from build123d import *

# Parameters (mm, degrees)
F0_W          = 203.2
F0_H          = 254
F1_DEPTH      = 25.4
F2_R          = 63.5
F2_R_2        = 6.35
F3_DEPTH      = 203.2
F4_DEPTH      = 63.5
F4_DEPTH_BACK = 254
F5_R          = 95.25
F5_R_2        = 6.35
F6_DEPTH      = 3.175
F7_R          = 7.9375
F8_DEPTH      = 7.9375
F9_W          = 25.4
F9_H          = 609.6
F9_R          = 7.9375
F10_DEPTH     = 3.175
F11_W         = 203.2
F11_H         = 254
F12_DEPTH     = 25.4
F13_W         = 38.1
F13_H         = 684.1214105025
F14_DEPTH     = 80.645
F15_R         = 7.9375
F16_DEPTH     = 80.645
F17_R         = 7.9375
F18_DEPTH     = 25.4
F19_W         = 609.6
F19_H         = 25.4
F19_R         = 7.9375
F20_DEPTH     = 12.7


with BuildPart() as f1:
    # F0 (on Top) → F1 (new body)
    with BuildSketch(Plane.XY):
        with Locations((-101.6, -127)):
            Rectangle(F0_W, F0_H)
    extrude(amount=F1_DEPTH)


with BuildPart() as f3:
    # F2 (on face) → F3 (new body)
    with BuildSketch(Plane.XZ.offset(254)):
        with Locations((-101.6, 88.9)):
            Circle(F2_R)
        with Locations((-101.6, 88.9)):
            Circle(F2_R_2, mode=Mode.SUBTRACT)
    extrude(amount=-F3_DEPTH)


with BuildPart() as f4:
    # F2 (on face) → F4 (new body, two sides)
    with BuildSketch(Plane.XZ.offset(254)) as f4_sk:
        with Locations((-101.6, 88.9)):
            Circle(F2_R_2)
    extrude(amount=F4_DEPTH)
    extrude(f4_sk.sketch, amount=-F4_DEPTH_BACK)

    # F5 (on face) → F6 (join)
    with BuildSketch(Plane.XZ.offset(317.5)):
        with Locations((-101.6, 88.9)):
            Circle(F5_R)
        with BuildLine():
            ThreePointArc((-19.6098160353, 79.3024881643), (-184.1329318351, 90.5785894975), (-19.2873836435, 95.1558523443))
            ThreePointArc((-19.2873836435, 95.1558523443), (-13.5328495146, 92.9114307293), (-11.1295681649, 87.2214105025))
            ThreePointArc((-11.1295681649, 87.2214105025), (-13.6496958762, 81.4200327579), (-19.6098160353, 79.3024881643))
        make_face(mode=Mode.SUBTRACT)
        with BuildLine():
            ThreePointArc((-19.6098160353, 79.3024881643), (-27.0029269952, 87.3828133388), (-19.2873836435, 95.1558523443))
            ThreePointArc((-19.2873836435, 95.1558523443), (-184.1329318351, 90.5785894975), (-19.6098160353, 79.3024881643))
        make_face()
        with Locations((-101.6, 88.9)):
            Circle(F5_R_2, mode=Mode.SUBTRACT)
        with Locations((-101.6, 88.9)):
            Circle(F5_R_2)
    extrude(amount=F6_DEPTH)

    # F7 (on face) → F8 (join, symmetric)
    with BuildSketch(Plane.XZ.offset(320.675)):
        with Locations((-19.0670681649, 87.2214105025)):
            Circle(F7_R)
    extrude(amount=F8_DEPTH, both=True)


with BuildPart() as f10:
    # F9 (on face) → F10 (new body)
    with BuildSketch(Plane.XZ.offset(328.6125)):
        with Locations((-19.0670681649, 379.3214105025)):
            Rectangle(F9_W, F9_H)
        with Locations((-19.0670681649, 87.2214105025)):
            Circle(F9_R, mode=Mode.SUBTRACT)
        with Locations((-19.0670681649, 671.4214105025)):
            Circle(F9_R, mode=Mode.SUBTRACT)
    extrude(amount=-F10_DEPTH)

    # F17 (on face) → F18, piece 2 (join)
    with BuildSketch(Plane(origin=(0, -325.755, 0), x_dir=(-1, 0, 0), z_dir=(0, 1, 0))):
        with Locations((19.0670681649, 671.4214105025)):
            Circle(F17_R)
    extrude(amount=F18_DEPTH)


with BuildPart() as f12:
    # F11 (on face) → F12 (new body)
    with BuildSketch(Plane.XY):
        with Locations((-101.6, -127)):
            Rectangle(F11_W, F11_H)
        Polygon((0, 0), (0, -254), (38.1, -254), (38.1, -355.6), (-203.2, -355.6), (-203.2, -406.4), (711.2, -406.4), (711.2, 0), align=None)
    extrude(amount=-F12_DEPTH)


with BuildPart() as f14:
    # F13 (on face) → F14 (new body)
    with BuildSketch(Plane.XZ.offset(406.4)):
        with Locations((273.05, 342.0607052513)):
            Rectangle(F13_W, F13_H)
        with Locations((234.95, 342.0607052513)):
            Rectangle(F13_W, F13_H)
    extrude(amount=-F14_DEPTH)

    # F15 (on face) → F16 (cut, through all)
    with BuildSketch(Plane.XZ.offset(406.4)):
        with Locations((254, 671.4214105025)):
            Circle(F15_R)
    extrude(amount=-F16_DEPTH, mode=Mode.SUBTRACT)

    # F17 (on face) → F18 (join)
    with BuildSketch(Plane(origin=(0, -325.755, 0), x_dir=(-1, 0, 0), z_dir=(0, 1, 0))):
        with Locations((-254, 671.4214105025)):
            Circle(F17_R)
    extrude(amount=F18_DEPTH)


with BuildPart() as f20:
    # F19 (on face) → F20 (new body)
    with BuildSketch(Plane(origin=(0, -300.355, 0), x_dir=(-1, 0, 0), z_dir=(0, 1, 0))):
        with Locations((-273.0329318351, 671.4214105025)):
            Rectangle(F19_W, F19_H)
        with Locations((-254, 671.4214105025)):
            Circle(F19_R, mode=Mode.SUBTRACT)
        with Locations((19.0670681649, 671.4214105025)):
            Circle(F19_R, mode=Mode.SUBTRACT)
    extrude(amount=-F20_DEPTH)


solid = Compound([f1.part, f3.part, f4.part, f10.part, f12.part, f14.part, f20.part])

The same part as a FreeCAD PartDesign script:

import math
import FreeCAD as App
import Part
import Sketcher
Q = App.Units.Quantity

doc = App.newDocument("Part")
body = doc.addObject("PartDesign::Body", "Body")

sketch1 = body.newObject("Sketcher::SketchObject", "Sketch")
sketch1.AttachmentSupport = (doc.getObject("XY_Plane"), [""])
sketch1.MapMode = "FlatFace"
sketch1.addGeometry([
    Part.LineSegment(App.Vector(-203.2, 0, 0), App.Vector(-203.2, -254, 0)),
    Part.LineSegment(App.Vector(-203.2, -254, 0), App.Vector(0, -254, 0)),
    Part.LineSegment(App.Vector(0, -254, 0), App.Vector(0, 0, 0)),
    Part.LineSegment(App.Vector(0, 0, 0), App.Vector(-203.2, 0, 0)),
], False)
sketch1.addConstraint([
    Sketcher.Constraint("Coincident", 0, 2, 1, 1),
    Sketcher.Constraint("Coincident", 1, 2, 2, 1),
    Sketcher.Constraint("Coincident", 2, 2, 3, 1),
    Sketcher.Constraint("Coincident", 3, 2, 0, 1),
    Sketcher.Constraint("Vertical", 0),
    Sketcher.Constraint("Horizontal", 1),
    Sketcher.Constraint("Vertical", 2),
    Sketcher.Constraint("Horizontal", 3),
    Sketcher.Constraint("Coincident", 2, 2, -1, 1),
    Sketcher.Constraint("DistanceX", 1, 1, 1, 2, Q("8 in")),
    Sketcher.Constraint("DistanceY", 0, 2, 0, 1, Q("10 in")),
])
pad1 = body.newObject("PartDesign::Pad", "Pad")
pad1.Profile = sketch1
pad1.Length = Q("1 in")
body2 = doc.addObject("PartDesign::Body", "Body001")

sketch2 = body2.newObject("Sketcher::SketchObject", "Sketch001")
sketch2.AttachmentSupport = (doc.getObject("XZ_Plane001"), [""])
sketch2.MapMode = "FlatFace"
sketch2.AttachmentOffset = App.Placement(App.Vector(0, 0, 10 * 25.4), App.Rotation())
sketch2.addGeometry([
    Part.Circle(App.Vector(-101.6, 88.9, 0), App.Vector(0, 0, 1), 63.5),
    Part.Circle(App.Vector(-101.6, 88.9, 0), App.Vector(0, 0, 1), 6.35),
], False)
sketch2.addConstraint([
    Sketcher.Constraint("Coincident", 1, 3, 0, 3),
    Sketcher.Constraint("Diameter", 0, Q("5 in")),
    Sketcher.Constraint("Diameter", 1, Q("0.5 in")),
    Sketcher.Constraint("DistanceX", 0, 3, -1, 1, Q("4 in")),
    Sketcher.Constraint("DistanceY", -1, 1, 0, 3, Q("3.5 in")),
])
pad2 = body2.newObject("PartDesign::Pad", "Pad001")
pad2.Profile = sketch2
pad2.Length = Q("8 in")
pad2.Reversed = True
body3 = doc.addObject("PartDesign::Body", "Body002")

sketch3 = body3.newObject("Sketcher::SketchObject", "Sketch002")
sketch3.AttachmentSupport = (doc.getObject("XZ_Plane002"), [""])
sketch3.MapMode = "FlatFace"
sketch3.AttachmentOffset = App.Placement(App.Vector(0, 0, 10 * 25.4), App.Rotation())
sketch3.addGeometry(Part.Circle(App.Vector(-101.6, 88.9, 0), App.Vector(0, 0, 1), 6.35), False)
sketch3.addConstraint([
    Sketcher.Constraint("Diameter", 0, Q("0.5 in")),
    Sketcher.Constraint("DistanceX", 0, 3, -1, 1, Q("4 in")),
    Sketcher.Constraint("DistanceY", -1, 1, 0, 3, Q("3.5 in")),
])
pad3 = body3.newObject("PartDesign::Pad", "Pad002")
pad3.Profile = sketch3
pad3.Type = "TwoLengths"
pad3.Length = Q("2.5 in")
pad3.Length2 = Q("10 in")

sketch4 = body3.newObject("Sketcher::SketchObject", "Sketch003")
sketch4.AttachmentSupport = (doc.getObject("XZ_Plane002"), [""])
sketch4.MapMode = "FlatFace"
sketch4.AttachmentOffset = App.Placement(App.Vector(0, 0, 12.5 * 25.4), App.Rotation())
sketch4.addGeometry([
    Part.Circle(App.Vector(-101.6, 88.9, 0), App.Vector(0, 0, 1), 95.25),
    Part.ArcOfCircle(Part.Circle(App.Vector(-19.067068, 87.221411, 0), App.Vector(0, 0, 1), 7.9375), math.radians(-93.920812), math.radians(0)),
    Part.ArcOfCircle(Part.Circle(App.Vector(-19.067068, 87.221411, 0), App.Vector(0, 0, 1), 7.9375), math.radians(91.590522), math.radians(266.079188)),
    Part.ArcOfCircle(Part.Circle(App.Vector(-19.067068, 87.221411, 0), App.Vector(0, 0, 1), 7.9375), math.radians(0), math.radians(91.590522)),
], False)
sketch4.addConstraint([
    Sketcher.Constraint("Tangent", 1, 1, 2, 2),
    Sketcher.Constraint("Tangent", 2, 1, 3, 2),
    Sketcher.Constraint("Tangent", 3, 1, 1, 2),
    Sketcher.Constraint("Horizontal", 2, 3, 3, 1),
    Sketcher.Constraint("Diameter", 0, Q("7.5 in")),
    Sketcher.Constraint("DistanceX", 0, 3, -1, 1, Q("4 in")),
    Sketcher.Constraint("Radius", 1, Q("0.3125 in")),
    Sketcher.Constraint("DistanceY", -1, 1, 0, 3, Q("3.5 in")),
    Sketcher.Constraint("DistanceX", 1, 3, -1, 1, 19.067068),
    Sketcher.Constraint("DistanceY", -1, 1, 1, 3, 87.221411),
    Sketcher.Constraint("DistanceY", -1, 1, 1, 1, 79.302488),
    Sketcher.Constraint("DistanceY", 2, 3, 2, 1, 7.934442),
])
pad4 = body3.newObject("PartDesign::Pad", "Pad003")
pad4.Profile = sketch4
pad4.Length = Q("0.125 in")

sketch5 = body3.newObject("Sketcher::SketchObject", "Sketch004")
sketch5.AttachmentSupport = (doc.getObject("XZ_Plane002"), [""])
sketch5.MapMode = "FlatFace"
sketch5.AttachmentOffset = App.Placement(App.Vector(0, 0, 12.625 * 25.4), App.Rotation())
sketch5.addGeometry(Part.Circle(App.Vector(-19.067068, 87.221411, 0), App.Vector(0, 0, 1), 7.9375), False)
sketch5.addConstraint([
    Sketcher.Constraint("Diameter", 0, Q("0.625 in")),
    Sketcher.Constraint("DistanceX", 0, 3, -1, 1, 19.067068),
    Sketcher.Constraint("DistanceY", -1, 1, 0, 3, 87.221411),
])
pad5 = body3.newObject("PartDesign::Pad", "Pad004")
pad5.Profile = sketch5
pad5.Length = Q("0.625 in")
pad5.Midplane = True
body4 = doc.addObject("PartDesign::Body", "Body003")

sketch6 = body4.newObject("Sketcher::SketchObject", "Sketch005")
sketch6.AttachmentSupport = (doc.getObject("XZ_Plane003"), [""])
sketch6.MapMode = "FlatFace"
sketch6.AttachmentOffset = App.Placement(App.Vector(0, 0, 12.9375 * 25.4), App.Rotation())
sketch6.addGeometry([
    Part.LineSegment(App.Vector(-31.767068, 684.121411, 0), App.Vector(-31.767068, 74.521411, 0)),
    Part.LineSegment(App.Vector(-31.767068, 74.521411, 0), App.Vector(-6.367068, 74.521411, 0)),
    Part.LineSegment(App.Vector(-6.367068, 74.521411, 0), App.Vector(-6.367068, 684.121411, 0)),
    Part.LineSegment(App.Vector(-6.367068, 684.121411, 0), App.Vector(-31.767068, 684.121411, 0)),
    Part.Circle(App.Vector(-19.067068, 87.221411, 0), App.Vector(0, 0, 1), 7.9375),
    Part.Circle(App.Vector(-19.067068, 671.421411, 0), App.Vector(0, 0, 1), 7.9375),
], False)
sketch6.addConstraint([
    Sketcher.Constraint("Coincident", 0, 2, 1, 1),
    Sketcher.Constraint("Coincident", 1, 2, 2, 1),
    Sketcher.Constraint("Coincident", 2, 2, 3, 1),
    Sketcher.Constraint("Coincident", 3, 2, 0, 1),
    Sketcher.Constraint("Vertical", 0),
    Sketcher.Constraint("Horizontal", 1),
    Sketcher.Constraint("Vertical", 2),
    Sketcher.Constraint("Horizontal", 3),
    Sketcher.Constraint("Equal", 4, 5),
    Sketcher.Constraint("Vertical", 4, 3, 5, 3),
    Sketcher.Constraint("DistanceX", 1, 1, 1, 2, Q("1 in")),
    Sketcher.Constraint("DistanceY", 0, 2, 0, 1, Q("24 in")),
    Sketcher.Constraint("Diameter", 4, Q("0.625 in")),
    Sketcher.Constraint("DistanceY", 4, 3, 5, 3, Q("23 in")),
    Sketcher.Constraint("DistanceX", 0, 2, 4, 3, Q("0.5 in")),
    Sketcher.Constraint("DistanceY", 0, 2, 4, 3, Q("0.5 in")),
    Sketcher.Constraint("DistanceX", 4, 3, -1, 1, 19.067068),
    Sketcher.Constraint("DistanceY", -1, 1, 4, 3, 87.221411),
])
pad6 = body4.newObject("PartDesign::Pad", "Pad005")
pad6.Profile = sketch6
pad6.Length = Q("0.125 in")
pad6.Reversed = True

sketch7 = body4.newObject("Sketcher::SketchObject", "Sketch006")
sketch7.AttachmentSupport = (doc.getObject("XZ_Plane003"), [""])
sketch7.MapMode = "FlatFace"
sketch7.AttachmentOffset = App.Placement(App.Vector(0, 0, 12.825 * 25.4), App.Rotation())
sketch7.addGeometry(Part.Circle(App.Vector(-19.067068, 671.421411, 0), App.Vector(0, 0, 1), 7.9375), False)
sketch7.addConstraint([
    Sketcher.Constraint("Diameter", 0, Q("0.625 in")),
    Sketcher.Constraint("DistanceX", 0, 3, -1, 1, 19.067068),
    Sketcher.Constraint("DistanceY", -1, 1, 0, 3, 671.421411),
])
pad7 = body4.newObject("PartDesign::Pad", "Pad006")
pad7.Profile = sketch7
pad7.Length = Q("1 in")
pad7.Reversed = True
body5 = doc.addObject("PartDesign::Body", "Body004")

sketch8 = body5.newObject("Sketcher::SketchObject", "Sketch007")
sketch8.AttachmentSupport = (doc.getObject("XY_Plane004"), [""])
sketch8.MapMode = "FlatFace"
sketch8.addGeometry([
    Part.LineSegment(App.Vector(-203.2, 0, 0), App.Vector(-203.2, -254, 0)),
    Part.LineSegment(App.Vector(-203.2, -254, 0), App.Vector(38.1, -254, 0)),
    Part.LineSegment(App.Vector(38.1, -254, 0), App.Vector(38.1, -355.6, 0)),
    Part.LineSegment(App.Vector(38.1, -355.6, 0), App.Vector(-203.2, -355.6, 0)),
    Part.LineSegment(App.Vector(-203.2, -355.6, 0), App.Vector(-203.2, -406.4, 0)),
    Part.LineSegment(App.Vector(-203.2, -406.4, 0), App.Vector(711.2, -406.4, 0)),
    Part.LineSegment(App.Vector(711.2, -406.4, 0), App.Vector(711.2, 0, 0)),
    Part.LineSegment(App.Vector(711.2, 0, 0), App.Vector(-203.2, 0, 0)),
], False)
sketch8.addConstraint([
    Sketcher.Constraint("Coincident", 0, 2, 1, 1),
    Sketcher.Constraint("Coincident", 1, 2, 2, 1),
    Sketcher.Constraint("Coincident", 2, 2, 3, 1),
    Sketcher.Constraint("Coincident", 3, 2, 4, 1),
    Sketcher.Constraint("Coincident", 4, 2, 5, 1),
    Sketcher.Constraint("Coincident", 5, 2, 6, 1),
    Sketcher.Constraint("Coincident", 6, 2, 7, 1),
    Sketcher.Constraint("Coincident", 7, 2, 0, 1),
    Sketcher.Constraint("Vertical", 0),
    Sketcher.Constraint("Horizontal", 1),
    Sketcher.Constraint("Vertical", 2),
    Sketcher.Constraint("Horizontal", 3),
    Sketcher.Constraint("Vertical", 4),
    Sketcher.Constraint("Horizontal", 5),
    Sketcher.Constraint("Vertical", 6),
    Sketcher.Constraint("Horizontal", 7),
    Sketcher.Constraint("PointOnObject", 6, 2, -1),
    Sketcher.Constraint("Vertical", 0, 2, 3, 2),
    Sketcher.Constraint("DistanceX", 5, 1, 5, 2, Q("36 in")),
    Sketcher.Constraint("DistanceY", 0, 2, 0, 1, Q("10 in")),
    Sketcher.Constraint("DistanceY", 2, 2, 2, 1, Q("4 in")),
    Sketcher.Constraint("DistanceY", 4, 2, 4, 1, Q("2 in")),
    Sketcher.Constraint("DistanceX", 1, 1, 1, 2, Q("9.5 in")),
    Sketcher.Constraint("DistanceX", 0, 2, -1, 1, Q("8 in")),
])
pad8 = body5.newObject("PartDesign::Pad", "Pad007")
pad8.Profile = sketch8
pad8.Length = Q("1 in")
pad8.Reversed = True
body6 = doc.addObject("PartDesign::Body", "Body005")
body6.AllowCompound = True

sketch9 = body6.newObject("Sketcher::SketchObject", "Sketch008")
sketch9.AttachmentSupport = (doc.getObject("XZ_Plane005"), [""])
sketch9.MapMode = "FlatFace"
sketch9.AttachmentOffset = App.Placement(App.Vector(0, 0, 16 * 25.4), App.Rotation())
sketch9.addGeometry([
    Part.LineSegment(App.Vector(292.1, 0, 0), App.Vector(292.1, 684.121411, 0)),
    Part.LineSegment(App.Vector(292.1, 684.121411, 0), App.Vector(215.9, 684.121411, 0)),
    Part.LineSegment(App.Vector(215.9, 684.121411, 0), App.Vector(215.9, 0, 0)),
    Part.LineSegment(App.Vector(215.9, 0, 0), App.Vector(292.1, 0, 0)),
], False)
sketch9.addConstraint([
    Sketcher.Constraint("Coincident", 0, 2, 1, 1),
    Sketcher.Constraint("Coincident", 1, 2, 2, 1),
    Sketcher.Constraint("Coincident", 2, 2, 3, 1),
    Sketcher.Constraint("Coincident", 3, 2, 0, 1),
    Sketcher.Constraint("Vertical", 0),
    Sketcher.Constraint("Horizontal", 1),
    Sketcher.Constraint("Vertical", 2),
    Sketcher.Constraint("Horizontal", 3),
    Sketcher.Constraint("PointOnObject", 2, 2, -1),
    Sketcher.Constraint("DistanceX", 1, 2, 1, 1, Q("3 in")),
    Sketcher.Constraint("DistanceX", -1, 1, 0, 2, Q("11.5 in")),
    Sketcher.Constraint("DistanceY", 0, 1, 0, 2, 684.121411),
])
pad9 = body6.newObject("PartDesign::Pad", "Pad008")
pad9.Profile = sketch9
pad9.Length = Q("3.175 in")
pad9.Reversed = True

sketch10 = body6.newObject("Sketcher::SketchObject", "Sketch009")
sketch10.AttachmentSupport = (doc.getObject("XZ_Plane005"), [""])
sketch10.MapMode = "FlatFace"
sketch10.AttachmentOffset = App.Placement(App.Vector(0, 0, 16 * 25.4), App.Rotation())
sketch10.addGeometry(Part.Circle(App.Vector(254, 671.421411, 0), App.Vector(0, 0, 1), 7.9375), False)
sketch10.addConstraint([
    Sketcher.Constraint("Diameter", 0, Q("0.625 in")),
    Sketcher.Constraint("DistanceX", -1, 1, 0, 3, Q("10 in")),
    Sketcher.Constraint("DistanceY", -1, 1, 0, 3, 671.421411),
])
pocket1 = body6.newObject("PartDesign::Pocket", "Pocket")
pocket1.Profile = sketch10
pocket1.Type = "ThroughAll"

sketch11 = body6.newObject("Sketcher::SketchObject", "Sketch010")
sketch11.AttachmentSupport = (doc.getObject("XZ_Plane005"), [""])
sketch11.MapMode = "FlatFace"
sketch11.AttachmentOffset = App.Placement(App.Vector(0, 0, 12.825 * 25.4), App.Rotation())
sketch11.addGeometry(Part.Circle(App.Vector(254, 671.421411, 0), App.Vector(0, 0, 1), 7.9375), False)
sketch11.addConstraint([
    Sketcher.Constraint("Diameter", 0, Q("0.625 in")),
    Sketcher.Constraint("DistanceX", -1, 1, 0, 3, Q("10 in")),
    Sketcher.Constraint("DistanceY", -1, 1, 0, 3, 671.421411),
])
pad10 = body6.newObject("PartDesign::Pad", "Pad009")
pad10.Profile = sketch11
pad10.Length = Q("1 in")
pad10.Reversed = True
body7 = doc.addObject("PartDesign::Body", "Body006")

sketch12 = body7.newObject("Sketcher::SketchObject", "Sketch011")
sketch12.AttachmentSupport = (doc.getObject("XZ_Plane006"), [""])
sketch12.MapMode = "FlatFace"
sketch12.AttachmentOffset = App.Placement(App.Vector(0, 0, 11.825 * 25.4), App.Rotation())
sketch12.addGeometry([
    Part.LineSegment(App.Vector(577.832932, 684.121411, 0), App.Vector(577.832932, 658.721411, 0)),
    Part.LineSegment(App.Vector(577.832932, 658.721411, 0), App.Vector(-31.767068, 658.721411, 0)),
    Part.LineSegment(App.Vector(-31.767068, 658.721411, 0), App.Vector(-31.767068, 684.121411, 0)),
    Part.LineSegment(App.Vector(-31.767068, 684.121411, 0), App.Vector(577.832932, 684.121411, 0)),
    Part.Circle(App.Vector(254, 671.421411, 0), App.Vector(0, 0, 1), 7.9375),
    Part.Circle(App.Vector(-19.067068, 671.421411, 0), App.Vector(0, 0, 1), 7.9375),
], False)
sketch12.addConstraint([
    Sketcher.Constraint("Coincident", 0, 2, 1, 1),
    Sketcher.Constraint("Coincident", 1, 2, 2, 1),
    Sketcher.Constraint("Coincident", 2, 2, 3, 1),
    Sketcher.Constraint("Coincident", 3, 2, 0, 1),
    Sketcher.Constraint("Vertical", 0),
    Sketcher.Constraint("Horizontal", 1),
    Sketcher.Constraint("Vertical", 2),
    Sketcher.Constraint("Horizontal", 3),
    Sketcher.Constraint("Equal", 4, 5),
    Sketcher.Constraint("Horizontal", 4, 3, 5, 3),
    Sketcher.Constraint("DistanceX", 1, 2, 1, 1, Q("24 in")),
    Sketcher.Constraint("DistanceY", 0, 2, 0, 1, Q("1 in")),
    Sketcher.Constraint("Diameter", 4, Q("0.625 in")),
    Sketcher.Constraint("DistanceX", -1, 1, 4, 3, Q("10 in")),
    Sketcher.Constraint("DistanceY", 0, 2, 4, 3, Q("0.5 in")),
    Sketcher.Constraint("DistanceX", 5, 3, 0, 2, Q("23.5 in")),
    Sketcher.Constraint("DistanceY", -1, 1, 4, 3, 671.421411),
    Sketcher.Constraint("DistanceX", 5, 3, -1, 1, 19.067068),
])
pad11 = body7.newObject("PartDesign::Pad", "Pad010")
pad11.Profile = sketch12
pad11.Length = Q("0.5 in")

doc.recompute()
